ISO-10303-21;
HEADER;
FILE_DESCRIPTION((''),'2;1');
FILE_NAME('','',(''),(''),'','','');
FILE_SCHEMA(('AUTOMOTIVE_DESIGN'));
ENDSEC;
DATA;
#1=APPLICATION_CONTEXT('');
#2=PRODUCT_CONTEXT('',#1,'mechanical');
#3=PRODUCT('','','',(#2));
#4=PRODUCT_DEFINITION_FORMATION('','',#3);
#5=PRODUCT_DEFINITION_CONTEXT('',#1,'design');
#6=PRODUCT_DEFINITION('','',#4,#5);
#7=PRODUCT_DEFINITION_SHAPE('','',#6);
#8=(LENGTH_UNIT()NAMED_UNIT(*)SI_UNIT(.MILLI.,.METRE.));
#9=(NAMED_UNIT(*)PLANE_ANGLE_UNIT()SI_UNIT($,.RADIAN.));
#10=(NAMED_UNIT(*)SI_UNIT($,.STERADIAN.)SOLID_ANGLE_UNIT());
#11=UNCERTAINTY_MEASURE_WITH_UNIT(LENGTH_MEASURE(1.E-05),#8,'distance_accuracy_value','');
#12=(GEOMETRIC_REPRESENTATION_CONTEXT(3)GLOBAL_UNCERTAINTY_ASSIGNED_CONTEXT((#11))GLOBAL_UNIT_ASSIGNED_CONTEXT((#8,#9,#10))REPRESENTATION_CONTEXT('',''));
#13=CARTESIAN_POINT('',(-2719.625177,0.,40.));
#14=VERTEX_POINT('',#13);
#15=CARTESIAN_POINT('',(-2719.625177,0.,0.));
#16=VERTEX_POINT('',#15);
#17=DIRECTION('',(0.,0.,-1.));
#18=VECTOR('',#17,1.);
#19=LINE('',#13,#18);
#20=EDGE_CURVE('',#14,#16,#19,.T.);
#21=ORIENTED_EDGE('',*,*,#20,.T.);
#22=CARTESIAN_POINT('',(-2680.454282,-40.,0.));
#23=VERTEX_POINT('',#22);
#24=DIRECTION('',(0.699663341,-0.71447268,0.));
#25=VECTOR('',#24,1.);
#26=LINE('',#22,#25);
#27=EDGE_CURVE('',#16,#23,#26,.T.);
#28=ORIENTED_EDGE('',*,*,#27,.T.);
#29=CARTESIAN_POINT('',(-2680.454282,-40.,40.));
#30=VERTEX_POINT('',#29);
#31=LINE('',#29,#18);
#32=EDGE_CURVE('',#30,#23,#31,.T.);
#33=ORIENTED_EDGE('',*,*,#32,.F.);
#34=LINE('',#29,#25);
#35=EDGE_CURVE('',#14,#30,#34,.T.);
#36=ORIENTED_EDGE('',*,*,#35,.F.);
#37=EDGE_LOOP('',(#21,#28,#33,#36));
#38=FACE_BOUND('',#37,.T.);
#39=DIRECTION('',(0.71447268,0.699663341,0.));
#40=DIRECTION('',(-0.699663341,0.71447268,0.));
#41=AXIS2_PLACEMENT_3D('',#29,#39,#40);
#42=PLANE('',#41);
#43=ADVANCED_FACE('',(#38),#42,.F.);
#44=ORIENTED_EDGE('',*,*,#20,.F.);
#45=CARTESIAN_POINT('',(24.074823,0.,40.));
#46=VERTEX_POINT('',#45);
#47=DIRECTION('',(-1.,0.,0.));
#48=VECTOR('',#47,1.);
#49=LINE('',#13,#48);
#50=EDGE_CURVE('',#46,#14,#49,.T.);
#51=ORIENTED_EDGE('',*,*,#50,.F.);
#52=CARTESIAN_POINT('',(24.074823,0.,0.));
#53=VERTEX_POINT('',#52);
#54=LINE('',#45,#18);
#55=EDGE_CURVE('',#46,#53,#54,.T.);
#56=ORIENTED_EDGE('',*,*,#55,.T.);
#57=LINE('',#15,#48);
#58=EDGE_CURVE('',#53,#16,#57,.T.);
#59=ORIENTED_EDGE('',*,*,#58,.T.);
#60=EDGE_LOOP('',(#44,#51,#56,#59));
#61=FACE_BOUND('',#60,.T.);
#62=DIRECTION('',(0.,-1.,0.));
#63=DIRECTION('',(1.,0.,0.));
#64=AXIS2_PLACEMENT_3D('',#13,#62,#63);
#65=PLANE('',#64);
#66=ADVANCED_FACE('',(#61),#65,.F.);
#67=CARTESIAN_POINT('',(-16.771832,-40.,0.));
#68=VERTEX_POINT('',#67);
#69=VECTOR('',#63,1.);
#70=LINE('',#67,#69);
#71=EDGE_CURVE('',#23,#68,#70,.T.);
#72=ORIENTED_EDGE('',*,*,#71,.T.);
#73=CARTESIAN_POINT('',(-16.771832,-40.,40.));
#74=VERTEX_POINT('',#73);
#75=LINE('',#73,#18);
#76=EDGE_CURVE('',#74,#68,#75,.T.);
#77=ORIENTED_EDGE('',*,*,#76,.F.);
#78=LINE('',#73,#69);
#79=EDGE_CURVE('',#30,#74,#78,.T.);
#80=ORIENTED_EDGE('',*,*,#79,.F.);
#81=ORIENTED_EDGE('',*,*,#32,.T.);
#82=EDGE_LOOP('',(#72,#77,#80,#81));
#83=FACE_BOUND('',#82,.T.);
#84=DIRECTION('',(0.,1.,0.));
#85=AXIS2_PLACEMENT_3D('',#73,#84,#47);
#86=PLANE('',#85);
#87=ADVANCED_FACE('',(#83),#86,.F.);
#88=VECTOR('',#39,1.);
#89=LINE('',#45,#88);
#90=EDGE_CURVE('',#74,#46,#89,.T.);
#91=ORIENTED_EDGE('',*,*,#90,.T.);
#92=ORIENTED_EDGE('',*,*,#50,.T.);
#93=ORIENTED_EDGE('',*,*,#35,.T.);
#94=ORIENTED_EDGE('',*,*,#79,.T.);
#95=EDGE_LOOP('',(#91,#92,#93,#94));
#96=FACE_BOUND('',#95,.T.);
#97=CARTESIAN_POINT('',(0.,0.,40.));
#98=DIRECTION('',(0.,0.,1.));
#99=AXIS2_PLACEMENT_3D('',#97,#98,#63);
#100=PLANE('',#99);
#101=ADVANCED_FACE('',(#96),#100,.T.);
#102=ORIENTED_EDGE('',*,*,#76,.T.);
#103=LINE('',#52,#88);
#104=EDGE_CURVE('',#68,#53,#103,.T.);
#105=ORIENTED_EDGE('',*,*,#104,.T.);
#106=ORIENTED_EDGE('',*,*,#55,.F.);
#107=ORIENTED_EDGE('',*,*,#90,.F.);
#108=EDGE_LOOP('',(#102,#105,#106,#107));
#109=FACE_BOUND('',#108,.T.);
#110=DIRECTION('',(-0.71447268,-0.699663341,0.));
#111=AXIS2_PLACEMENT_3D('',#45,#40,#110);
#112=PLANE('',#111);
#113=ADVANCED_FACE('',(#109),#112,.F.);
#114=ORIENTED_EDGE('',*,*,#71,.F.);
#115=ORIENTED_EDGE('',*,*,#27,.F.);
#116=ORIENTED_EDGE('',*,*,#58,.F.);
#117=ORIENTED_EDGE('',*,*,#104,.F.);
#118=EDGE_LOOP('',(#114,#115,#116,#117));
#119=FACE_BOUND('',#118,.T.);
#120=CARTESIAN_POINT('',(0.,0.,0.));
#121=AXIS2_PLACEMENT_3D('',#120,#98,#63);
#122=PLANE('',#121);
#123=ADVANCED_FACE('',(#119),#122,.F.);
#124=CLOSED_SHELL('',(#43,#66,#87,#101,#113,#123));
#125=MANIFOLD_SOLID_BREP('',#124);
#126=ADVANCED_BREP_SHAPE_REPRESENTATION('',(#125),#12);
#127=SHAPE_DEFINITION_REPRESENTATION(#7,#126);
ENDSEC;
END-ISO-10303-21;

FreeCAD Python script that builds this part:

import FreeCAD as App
import Part
import Sketcher

V = App.Vector
Q = App.Units.Quantity

doc = App.newDocument("Part")
params = doc.addObject("Spreadsheet::Sheet", "Params")
for row, (alias, value) in enumerate([
    ("sketch1_width", "2743.7 mm"),
    ("pad1_length", "40 mm"),
], start=1):
    params.set(f"A{row}", alias)
    params.set(f"B{row}", "=" + value)
    params.setAlias(f"B{row}", alias)

body = doc.addObject("PartDesign::Body", "Body")

# Sketch on XY plane
sketch1 = body.newObject("Sketcher::SketchObject", "Sketch")
sketch1.AttachmentSupport = (doc.getObject("XY_Plane"), [""])
sketch1.MapMode = "FlatFace"
sketch1.addGeometry([
    Part.LineSegment(V(24, 0, 0), V(-2720, 0, 0)),
    Part.LineSegment(V(-2720, 0, 0), V(-2680, -40, 0)),
    Part.LineSegment(V(-2680, -40, 0), V(-17, -40, 0)),
    Part.LineSegment(V(-17, -40, 0), V(24, 0, 0)),
], False)
sketch1.addConstraint([
    Sketcher.Constraint("Coincident", 0, 2, 1, 1),
    Sketcher.Constraint("Coincident", 1, 2, 2, 1),
    Sketcher.Constraint("Coincident", 2, 2, 3, 1),
    Sketcher.Constraint("Coincident", 3, 2, 0, 1),
    Sketcher.Constraint("Horizontal", 0),
    Sketcher.Constraint("Horizontal", 2),
    Sketcher.Constraint("PointOnObject", 0, 2, -1),
    Sketcher.Constraint("Perpendicular", 1, 3),
    Sketcher.Constraint("DistanceX", 0, 2, 0, 1, 2743.7),
    Sketcher.Constraint("DistanceY", 1, 2, -1, 1, 40.0),
    Sketcher.Constraint("Angle", 1, Q("-45.6 deg")),
    Sketcher.Constraint("DistanceX", 2, 2, -1, 1, 16.771832),
])
sketch1.setExpression("Constraints[8]", "Params.sketch1_width")
pad1 = body.newObject("PartDesign::Pad", "Pad")
pad1.Profile = sketch1
pad1.setExpression("Length", "Params.pad1_length")

doc.recompute()
